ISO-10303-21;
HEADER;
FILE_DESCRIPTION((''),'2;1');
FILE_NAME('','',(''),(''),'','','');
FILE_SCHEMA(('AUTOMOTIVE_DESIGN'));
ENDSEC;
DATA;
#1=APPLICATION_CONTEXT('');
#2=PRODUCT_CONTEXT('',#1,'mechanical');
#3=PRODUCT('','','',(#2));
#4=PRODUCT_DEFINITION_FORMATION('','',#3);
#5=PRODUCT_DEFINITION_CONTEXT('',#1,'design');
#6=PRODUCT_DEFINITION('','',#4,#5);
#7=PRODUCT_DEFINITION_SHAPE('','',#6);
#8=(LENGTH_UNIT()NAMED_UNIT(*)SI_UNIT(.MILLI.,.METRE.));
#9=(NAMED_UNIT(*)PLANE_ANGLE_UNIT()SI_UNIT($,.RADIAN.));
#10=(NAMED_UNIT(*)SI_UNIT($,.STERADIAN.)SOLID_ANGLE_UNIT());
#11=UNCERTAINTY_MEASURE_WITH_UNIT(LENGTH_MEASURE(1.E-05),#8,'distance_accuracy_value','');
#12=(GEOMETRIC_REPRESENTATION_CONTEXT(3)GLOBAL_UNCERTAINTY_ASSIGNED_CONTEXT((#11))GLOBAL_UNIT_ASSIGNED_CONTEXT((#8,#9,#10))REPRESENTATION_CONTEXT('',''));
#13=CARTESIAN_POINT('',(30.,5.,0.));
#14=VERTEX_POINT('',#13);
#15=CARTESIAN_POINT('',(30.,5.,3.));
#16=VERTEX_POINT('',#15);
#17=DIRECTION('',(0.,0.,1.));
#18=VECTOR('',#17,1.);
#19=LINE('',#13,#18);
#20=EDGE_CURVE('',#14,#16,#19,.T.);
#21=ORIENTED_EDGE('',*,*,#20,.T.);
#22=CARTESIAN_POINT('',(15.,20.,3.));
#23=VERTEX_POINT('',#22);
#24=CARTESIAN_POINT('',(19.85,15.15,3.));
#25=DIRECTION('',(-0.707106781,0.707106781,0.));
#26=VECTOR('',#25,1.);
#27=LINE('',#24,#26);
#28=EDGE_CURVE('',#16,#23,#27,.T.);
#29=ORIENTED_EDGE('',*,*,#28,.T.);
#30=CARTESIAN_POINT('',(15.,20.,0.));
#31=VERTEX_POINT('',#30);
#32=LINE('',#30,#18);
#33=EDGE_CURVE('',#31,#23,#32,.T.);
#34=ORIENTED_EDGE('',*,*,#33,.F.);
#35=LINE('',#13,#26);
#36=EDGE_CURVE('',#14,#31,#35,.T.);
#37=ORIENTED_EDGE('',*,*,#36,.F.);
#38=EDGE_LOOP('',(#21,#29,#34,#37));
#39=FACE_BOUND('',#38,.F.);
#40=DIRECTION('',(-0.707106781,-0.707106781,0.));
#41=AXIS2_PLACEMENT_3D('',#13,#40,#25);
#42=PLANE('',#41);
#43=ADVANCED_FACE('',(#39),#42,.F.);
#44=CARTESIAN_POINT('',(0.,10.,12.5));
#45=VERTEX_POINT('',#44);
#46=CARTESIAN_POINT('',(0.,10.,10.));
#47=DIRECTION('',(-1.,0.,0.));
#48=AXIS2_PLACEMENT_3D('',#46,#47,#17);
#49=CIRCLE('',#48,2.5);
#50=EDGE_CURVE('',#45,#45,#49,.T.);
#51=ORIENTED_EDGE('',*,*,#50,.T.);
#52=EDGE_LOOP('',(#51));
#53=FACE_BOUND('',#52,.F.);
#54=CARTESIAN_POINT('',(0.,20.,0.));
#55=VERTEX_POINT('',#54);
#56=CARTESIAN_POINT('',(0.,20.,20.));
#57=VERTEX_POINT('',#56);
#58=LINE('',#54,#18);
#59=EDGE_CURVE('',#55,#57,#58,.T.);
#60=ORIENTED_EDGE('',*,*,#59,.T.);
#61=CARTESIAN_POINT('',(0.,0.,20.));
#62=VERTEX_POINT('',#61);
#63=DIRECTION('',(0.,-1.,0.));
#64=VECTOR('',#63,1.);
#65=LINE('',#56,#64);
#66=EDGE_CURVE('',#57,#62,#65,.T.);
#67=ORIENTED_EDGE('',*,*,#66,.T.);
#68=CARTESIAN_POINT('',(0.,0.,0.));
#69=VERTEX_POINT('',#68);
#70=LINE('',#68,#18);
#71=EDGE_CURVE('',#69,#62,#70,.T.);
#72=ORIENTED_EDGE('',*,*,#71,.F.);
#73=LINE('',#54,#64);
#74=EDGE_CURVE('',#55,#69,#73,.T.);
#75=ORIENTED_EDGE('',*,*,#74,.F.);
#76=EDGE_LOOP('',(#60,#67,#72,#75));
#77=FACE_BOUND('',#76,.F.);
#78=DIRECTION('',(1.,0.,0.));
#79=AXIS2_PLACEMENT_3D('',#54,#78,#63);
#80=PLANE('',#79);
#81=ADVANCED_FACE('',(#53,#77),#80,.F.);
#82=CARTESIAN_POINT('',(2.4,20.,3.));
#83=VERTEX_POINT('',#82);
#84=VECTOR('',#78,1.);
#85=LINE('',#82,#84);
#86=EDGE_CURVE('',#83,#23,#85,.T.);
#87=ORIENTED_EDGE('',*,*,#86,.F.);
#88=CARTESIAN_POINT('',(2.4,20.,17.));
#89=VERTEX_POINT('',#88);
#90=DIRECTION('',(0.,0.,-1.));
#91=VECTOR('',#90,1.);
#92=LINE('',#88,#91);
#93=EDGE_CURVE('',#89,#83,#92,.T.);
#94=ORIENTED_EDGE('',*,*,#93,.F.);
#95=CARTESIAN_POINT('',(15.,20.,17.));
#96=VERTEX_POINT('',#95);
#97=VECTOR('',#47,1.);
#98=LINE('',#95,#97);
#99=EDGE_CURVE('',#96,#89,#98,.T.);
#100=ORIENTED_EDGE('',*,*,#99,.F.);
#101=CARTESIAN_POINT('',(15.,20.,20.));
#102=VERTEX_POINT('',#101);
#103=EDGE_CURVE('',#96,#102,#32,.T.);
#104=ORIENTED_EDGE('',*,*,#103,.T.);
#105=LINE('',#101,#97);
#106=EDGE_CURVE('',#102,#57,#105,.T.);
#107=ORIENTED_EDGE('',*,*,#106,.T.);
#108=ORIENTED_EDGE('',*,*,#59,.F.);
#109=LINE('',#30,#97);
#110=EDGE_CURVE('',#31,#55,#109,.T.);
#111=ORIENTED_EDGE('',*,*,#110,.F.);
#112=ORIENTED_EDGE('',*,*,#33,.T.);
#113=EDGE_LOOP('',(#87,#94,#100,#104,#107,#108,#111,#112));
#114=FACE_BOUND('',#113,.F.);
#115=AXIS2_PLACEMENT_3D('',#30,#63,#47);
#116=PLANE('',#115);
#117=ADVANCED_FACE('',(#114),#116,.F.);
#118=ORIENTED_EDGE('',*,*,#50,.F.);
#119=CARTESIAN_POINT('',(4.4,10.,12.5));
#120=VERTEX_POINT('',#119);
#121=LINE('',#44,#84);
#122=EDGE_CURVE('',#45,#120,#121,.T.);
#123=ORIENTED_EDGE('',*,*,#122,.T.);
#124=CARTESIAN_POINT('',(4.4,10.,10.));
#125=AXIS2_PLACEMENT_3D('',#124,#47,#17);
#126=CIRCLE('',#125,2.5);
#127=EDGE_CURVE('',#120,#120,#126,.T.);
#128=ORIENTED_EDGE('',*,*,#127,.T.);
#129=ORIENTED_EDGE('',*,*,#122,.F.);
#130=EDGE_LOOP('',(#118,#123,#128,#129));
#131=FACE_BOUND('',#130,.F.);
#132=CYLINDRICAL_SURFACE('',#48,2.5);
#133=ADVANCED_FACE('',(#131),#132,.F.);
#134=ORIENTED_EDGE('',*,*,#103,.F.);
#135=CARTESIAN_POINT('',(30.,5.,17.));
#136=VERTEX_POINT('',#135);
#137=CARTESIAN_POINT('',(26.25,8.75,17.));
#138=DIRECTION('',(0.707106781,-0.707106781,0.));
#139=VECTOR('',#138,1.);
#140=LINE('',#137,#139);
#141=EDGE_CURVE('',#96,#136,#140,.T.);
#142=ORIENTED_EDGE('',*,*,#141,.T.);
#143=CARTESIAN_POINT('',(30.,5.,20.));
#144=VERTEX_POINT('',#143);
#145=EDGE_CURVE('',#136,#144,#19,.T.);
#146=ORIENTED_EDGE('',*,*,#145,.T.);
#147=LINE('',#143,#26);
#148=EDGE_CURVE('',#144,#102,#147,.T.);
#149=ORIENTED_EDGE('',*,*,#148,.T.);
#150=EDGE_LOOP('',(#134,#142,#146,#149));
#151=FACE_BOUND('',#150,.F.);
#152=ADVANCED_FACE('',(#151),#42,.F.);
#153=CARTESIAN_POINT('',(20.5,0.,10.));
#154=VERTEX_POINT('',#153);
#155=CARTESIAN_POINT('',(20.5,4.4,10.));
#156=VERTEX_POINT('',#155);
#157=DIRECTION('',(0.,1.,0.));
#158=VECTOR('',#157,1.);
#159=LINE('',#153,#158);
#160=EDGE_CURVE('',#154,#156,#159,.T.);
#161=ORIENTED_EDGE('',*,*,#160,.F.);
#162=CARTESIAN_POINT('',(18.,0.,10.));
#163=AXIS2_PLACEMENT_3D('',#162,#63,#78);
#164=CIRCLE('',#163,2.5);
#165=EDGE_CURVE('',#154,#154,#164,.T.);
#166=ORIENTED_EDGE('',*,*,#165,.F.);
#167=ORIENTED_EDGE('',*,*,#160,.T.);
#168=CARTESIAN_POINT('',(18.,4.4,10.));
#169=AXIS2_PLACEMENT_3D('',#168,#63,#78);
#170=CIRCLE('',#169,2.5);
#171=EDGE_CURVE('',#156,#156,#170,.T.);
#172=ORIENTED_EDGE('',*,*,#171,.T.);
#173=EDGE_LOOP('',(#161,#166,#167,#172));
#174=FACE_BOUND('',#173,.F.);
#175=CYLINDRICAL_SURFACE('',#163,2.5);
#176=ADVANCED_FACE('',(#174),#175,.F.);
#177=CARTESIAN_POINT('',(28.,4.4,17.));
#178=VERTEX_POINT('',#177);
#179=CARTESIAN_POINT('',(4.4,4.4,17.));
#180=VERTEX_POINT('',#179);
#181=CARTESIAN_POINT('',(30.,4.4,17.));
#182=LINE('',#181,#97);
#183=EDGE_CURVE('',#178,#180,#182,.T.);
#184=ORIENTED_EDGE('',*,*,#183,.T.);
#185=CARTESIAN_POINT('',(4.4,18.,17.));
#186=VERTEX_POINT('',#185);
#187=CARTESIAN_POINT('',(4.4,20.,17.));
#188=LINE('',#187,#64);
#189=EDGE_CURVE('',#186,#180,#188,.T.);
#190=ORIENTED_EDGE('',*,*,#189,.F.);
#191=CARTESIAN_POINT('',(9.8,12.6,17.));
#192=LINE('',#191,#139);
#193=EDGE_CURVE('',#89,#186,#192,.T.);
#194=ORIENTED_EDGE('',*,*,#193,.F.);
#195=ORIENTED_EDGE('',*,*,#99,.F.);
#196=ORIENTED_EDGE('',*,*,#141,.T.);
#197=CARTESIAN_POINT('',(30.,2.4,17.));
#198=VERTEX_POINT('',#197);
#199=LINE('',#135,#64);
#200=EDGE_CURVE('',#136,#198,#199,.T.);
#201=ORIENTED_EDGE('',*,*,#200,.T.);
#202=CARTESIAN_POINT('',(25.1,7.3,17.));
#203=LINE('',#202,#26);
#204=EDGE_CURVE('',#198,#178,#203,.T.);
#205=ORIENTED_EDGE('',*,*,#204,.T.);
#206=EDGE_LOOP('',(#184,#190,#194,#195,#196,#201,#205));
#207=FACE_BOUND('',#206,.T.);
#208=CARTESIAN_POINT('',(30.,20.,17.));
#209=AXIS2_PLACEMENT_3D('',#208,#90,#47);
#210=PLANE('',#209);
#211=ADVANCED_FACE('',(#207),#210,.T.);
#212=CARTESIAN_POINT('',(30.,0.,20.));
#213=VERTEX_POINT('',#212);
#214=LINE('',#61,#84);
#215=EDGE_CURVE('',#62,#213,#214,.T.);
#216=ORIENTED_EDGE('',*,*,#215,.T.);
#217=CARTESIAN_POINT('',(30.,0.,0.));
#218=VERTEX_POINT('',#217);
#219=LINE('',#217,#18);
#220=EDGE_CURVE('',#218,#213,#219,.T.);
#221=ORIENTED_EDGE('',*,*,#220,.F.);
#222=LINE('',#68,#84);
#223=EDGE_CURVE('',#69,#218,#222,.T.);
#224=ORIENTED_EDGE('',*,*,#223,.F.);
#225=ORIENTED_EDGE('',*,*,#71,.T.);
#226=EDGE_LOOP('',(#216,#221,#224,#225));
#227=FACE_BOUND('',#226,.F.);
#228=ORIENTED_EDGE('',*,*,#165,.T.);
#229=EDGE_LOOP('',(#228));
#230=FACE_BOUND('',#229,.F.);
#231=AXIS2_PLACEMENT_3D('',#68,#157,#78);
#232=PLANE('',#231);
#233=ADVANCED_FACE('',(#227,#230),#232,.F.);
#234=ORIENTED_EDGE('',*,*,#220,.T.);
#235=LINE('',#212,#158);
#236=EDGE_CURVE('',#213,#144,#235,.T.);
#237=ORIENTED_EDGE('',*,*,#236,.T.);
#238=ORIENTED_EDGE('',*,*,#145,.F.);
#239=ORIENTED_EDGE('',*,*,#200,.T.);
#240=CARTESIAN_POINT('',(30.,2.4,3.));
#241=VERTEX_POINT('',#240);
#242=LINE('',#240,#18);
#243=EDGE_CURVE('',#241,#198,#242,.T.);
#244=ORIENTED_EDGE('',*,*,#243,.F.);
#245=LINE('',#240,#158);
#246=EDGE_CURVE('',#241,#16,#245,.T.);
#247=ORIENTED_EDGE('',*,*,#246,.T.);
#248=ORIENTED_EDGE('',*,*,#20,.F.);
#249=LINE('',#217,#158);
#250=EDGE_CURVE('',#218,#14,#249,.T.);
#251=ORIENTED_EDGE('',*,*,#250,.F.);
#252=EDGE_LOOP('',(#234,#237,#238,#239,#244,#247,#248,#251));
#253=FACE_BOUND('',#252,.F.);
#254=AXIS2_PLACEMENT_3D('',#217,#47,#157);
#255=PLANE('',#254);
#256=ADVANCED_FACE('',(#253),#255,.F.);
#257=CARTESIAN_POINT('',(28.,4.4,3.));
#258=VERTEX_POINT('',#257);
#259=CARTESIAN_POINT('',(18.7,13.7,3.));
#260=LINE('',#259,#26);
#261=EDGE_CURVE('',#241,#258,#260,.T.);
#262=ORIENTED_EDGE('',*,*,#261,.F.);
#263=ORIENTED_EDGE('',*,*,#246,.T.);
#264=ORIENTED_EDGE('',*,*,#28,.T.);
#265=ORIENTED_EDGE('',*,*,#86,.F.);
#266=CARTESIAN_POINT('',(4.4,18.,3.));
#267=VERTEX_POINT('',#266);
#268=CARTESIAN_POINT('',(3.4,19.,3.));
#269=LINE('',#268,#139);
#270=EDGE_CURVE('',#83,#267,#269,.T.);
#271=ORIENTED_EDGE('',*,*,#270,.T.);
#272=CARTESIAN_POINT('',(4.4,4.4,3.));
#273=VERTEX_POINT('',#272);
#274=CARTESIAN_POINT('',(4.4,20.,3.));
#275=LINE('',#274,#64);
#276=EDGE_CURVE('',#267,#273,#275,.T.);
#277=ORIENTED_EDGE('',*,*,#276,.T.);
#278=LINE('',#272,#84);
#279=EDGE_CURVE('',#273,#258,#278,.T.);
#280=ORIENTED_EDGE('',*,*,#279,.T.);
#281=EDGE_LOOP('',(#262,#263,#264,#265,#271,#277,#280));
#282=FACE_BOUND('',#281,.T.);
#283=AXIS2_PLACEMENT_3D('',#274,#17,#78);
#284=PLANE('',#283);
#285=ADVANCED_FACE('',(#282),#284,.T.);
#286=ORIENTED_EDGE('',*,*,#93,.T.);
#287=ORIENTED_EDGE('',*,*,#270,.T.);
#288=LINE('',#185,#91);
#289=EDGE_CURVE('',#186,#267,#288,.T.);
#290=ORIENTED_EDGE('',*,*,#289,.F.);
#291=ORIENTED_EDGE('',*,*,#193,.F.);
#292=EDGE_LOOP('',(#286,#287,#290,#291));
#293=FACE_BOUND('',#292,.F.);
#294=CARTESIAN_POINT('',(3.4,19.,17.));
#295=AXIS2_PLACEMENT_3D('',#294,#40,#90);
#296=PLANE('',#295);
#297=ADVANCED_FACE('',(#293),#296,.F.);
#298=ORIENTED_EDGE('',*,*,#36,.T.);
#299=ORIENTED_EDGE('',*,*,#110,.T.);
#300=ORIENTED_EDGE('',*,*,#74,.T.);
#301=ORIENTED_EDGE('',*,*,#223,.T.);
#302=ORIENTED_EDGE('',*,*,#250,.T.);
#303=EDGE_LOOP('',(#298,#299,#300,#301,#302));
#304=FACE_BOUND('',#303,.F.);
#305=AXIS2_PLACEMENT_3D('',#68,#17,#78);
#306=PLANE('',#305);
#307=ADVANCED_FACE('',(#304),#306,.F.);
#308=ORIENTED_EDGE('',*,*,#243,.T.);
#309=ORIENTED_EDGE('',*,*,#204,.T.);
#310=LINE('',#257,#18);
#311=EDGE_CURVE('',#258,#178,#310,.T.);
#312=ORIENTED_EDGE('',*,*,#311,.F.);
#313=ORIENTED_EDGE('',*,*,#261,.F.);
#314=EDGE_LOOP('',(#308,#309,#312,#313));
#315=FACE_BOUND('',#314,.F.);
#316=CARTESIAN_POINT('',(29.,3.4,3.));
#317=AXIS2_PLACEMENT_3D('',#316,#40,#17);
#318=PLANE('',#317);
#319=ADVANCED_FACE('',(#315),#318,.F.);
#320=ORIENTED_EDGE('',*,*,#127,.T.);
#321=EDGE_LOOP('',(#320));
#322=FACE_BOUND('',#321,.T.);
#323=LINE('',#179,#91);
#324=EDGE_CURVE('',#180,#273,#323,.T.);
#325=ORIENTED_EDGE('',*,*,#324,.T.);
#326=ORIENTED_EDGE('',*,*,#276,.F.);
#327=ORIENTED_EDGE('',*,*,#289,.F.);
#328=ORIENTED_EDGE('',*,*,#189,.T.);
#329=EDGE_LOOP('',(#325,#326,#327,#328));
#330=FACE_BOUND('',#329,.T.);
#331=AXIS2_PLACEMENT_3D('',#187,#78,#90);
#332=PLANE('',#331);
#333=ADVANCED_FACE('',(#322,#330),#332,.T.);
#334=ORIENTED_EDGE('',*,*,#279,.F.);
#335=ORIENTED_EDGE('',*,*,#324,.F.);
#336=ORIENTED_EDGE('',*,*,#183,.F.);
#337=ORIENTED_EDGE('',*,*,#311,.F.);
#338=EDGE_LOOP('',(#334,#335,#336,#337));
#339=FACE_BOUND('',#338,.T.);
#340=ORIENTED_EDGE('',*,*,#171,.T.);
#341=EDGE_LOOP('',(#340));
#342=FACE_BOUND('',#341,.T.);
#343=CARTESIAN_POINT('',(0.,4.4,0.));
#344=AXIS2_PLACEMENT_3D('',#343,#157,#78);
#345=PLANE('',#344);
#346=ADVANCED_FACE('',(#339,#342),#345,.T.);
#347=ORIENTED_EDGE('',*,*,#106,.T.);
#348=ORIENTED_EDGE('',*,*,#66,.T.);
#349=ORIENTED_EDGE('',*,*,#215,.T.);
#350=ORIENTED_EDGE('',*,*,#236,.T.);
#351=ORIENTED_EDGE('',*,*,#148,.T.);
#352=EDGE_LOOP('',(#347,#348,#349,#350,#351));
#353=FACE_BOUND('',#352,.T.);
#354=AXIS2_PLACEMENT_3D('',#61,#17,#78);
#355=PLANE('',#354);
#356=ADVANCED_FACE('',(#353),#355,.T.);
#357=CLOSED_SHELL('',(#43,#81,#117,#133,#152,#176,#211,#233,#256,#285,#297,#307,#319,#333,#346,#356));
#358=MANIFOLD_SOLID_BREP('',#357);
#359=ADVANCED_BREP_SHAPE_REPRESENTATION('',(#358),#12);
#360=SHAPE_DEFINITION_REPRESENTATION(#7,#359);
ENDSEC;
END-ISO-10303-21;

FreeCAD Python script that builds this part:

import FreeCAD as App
import Part
import Sketcher
Q = App.Units.Quantity


def edges_at(feature, points):
    """Names of the edges that pass closest to the given points."""
    edges = feature.Shape.Edges
    near = lambda p: min(range(len(edges)), key=lambda i: edges[i].distToShape(Part.Vertex(*p))[0])
    return sorted({f"Edge{near(p) + 1}" for p in points})

doc = App.newDocument("Part")
body = doc.addObject("PartDesign::Body", "Body")

sketch1 = body.newObject("Sketcher::SketchObject", "Sketch")
sketch1.AttachmentSupport = (doc.getObject("XY_Plane"), [""])
sketch1.MapMode = "FlatFace"
sketch1.addGeometry(Part.LineSegment(App.Vector(0, 20, 0), App.Vector(0, 0, 0)), False)
sketch1.addGeometry(Part.LineSegment(App.Vector(0, 0, 0), App.Vector(30, 0, 0)), False)
sketch1.addGeometry(Part.LineSegment(App.Vector(30, 0, 0), App.Vector(30, 5, 0)), False)
sketch1.addGeometry(Part.LineSegment(App.Vector(30, 5, 0), App.Vector(15, 20, 0)), False)
sketch1.addGeometry(Part.LineSegment(App.Vector(15, 20, 0), App.Vector(0, 20, 0)), False)
sketch1.addConstraint(Sketcher.Constraint("Coincident", 0, 2, 1, 1))
sketch1.addConstraint(Sketcher.Constraint("Coincident", 1, 2, 2, 1))
sketch1.addConstraint(Sketcher.Constraint("Coincident", 2, 2, 3, 1))
sketch1.addConstraint(Sketcher.Constraint("Coincident", 3, 2, 4, 1))
sketch1.addConstraint(Sketcher.Constraint("Coincident", 4, 2, 0, 1))
sketch1.addConstraint(Sketcher.Constraint("Vertical", 0))
sketch1.addConstraint(Sketcher.Constraint("Horizontal", 1))
sketch1.addConstraint(Sketcher.Constraint("Vertical", 2))
sketch1.addConstraint(Sketcher.Constraint("Horizontal", 4))
sketch1.addConstraint(Sketcher.Constraint("Coincident", 0, 2, -1, 1))
sketch1.addConstraint(Sketcher.Constraint("DistanceX", 1, 1, 1, 2, Q("30 mm")))
sketch1.addConstraint(Sketcher.Constraint("DistanceX", 4, 2, 4, 1, Q("15 mm")))
sketch1.addConstraint(Sketcher.Constraint("DistanceY", 0, 2, 0, 1, Q("20 mm")))
sketch1.addConstraint(Sketcher.Constraint("DistanceY", 2, 1, 2, 2, Q("5 mm")))
pad1 = body.newObject("PartDesign::Pad", "Pad")
pad1.Profile = sketch1
pad1.Length = 20

sketch2 = body.newObject("Sketcher::SketchObject", "Sketch001")
sketch2.AttachmentSupport = (doc.getObject("XZ_Plane"), [""])
sketch2.MapMode = "FlatFace"
sketch2.AttachmentOffset = App.Placement(App.Vector(0, 0, -20), App.Rotation())
sketch2.addGeometry(Part.LineSegment(App.Vector(30, 3, 0), App.Vector(4, 3, 0)), False)
sketch2.addGeometry(Part.LineSegment(App.Vector(4, 3, 0), App.Vector(4, 17, 0)), False)
sketch2.addGeometry(Part.LineSegment(App.Vector(4, 17, 0), App.Vector(30, 17, 0)), False)
sketch2.addGeometry(Part.LineSegment(App.Vector(30, 17, 0), App.Vector(30, 3, 0)), False)
sketch2.addConstraint(Sketcher.Constraint("Coincident", 0, 2, 1, 1))
sketch2.addConstraint(Sketcher.Constraint("Coincident", 1, 2, 2, 1))
sketch2.addConstraint(Sketcher.Constraint("Coincident", 2, 2, 3, 1))
sketch2.addConstraint(Sketcher.Constraint("Coincident", 3, 2, 0, 1))
sketch2.addConstraint(Sketcher.Constraint("Horizontal", 0))
sketch2.addConstraint(Sketcher.Constraint("Vertical", 1))
sketch2.addConstraint(Sketcher.Constraint("Horizontal", 2))
sketch2.addConstraint(Sketcher.Constraint("Vertical", 3))
sketch2.addConstraint(Sketcher.Constraint("DistanceY", -1, 1, 0, 2, Q("3 mm")))
sketch2.addConstraint(Sketcher.Constraint("DistanceX", -1, 1, 0, 2, Q("4.4 mm")))
sketch2.addConstraint(Sketcher.Constraint("DistanceY", 1, 1, 1, 2, Q("14 mm")))
sketch2.addConstraint(Sketcher.Constraint("DistanceX", 0, 2, 0, 1, Q("25.6 mm")))
pocket1 = body.newObject("PartDesign::Pocket", "Pocket")
pocket1.Profile = sketch2
pocket1.Length = 15.6
pocket1.Reversed = True
doc.recompute()

chamfer = body.newObject("PartDesign::Chamfer", "Chamfer")
chamfer.Base = (pocket1, edges_at(pocket1, [(4.4, 20, 10), (30, 4.4, 10)]))
chamfer.Size = 2

sketch3 = body.newObject("Sketcher::SketchObject", "Sketch002")
sketch3.AttachmentSupport = (doc.getObject("YZ_Plane"), [""])
sketch3.MapMode = "FlatFace"
sketch3.addGeometry(Part.Circle(App.Vector(10, 10, 0), App.Vector(0, 0, 1), 2.5), False)
sketch3.addConstraint(Sketcher.Constraint("Diameter", 0, Q("5 mm")))
sketch3.addConstraint(Sketcher.Constraint("DistanceX", -1, 1, 0, 3, Q("10 mm")))
sketch3.addConstraint(Sketcher.Constraint("DistanceY", -1, 1, 0, 3, Q("10 mm")))
pocket2 = body.newObject("PartDesign::Pocket", "Pocket001")
pocket2.Profile = sketch3
pocket2.Type = "ThroughAll"
pocket2.Reversed = True

sketch4 = body.newObject("Sketcher::SketchObject", "Sketch003")
sketch4.AttachmentSupport = (doc.getObject("XZ_Plane"), [""])
sketch4.MapMode = "FlatFace"
sketch4.addGeometry(Part.Circle(App.Vector(18, 10, 0), App.Vector(0, 0, 1), 2.5), False)
sketch4.addConstraint(Sketcher.Constraint("Diameter", 0, Q("5 mm")))
sketch4.addConstraint(Sketcher.Constraint("DistanceX", -1, 1, 0, 3, Q("18 mm")))
sketch4.addConstraint(Sketcher.Constraint("DistanceY", -1, 1, 0, 3, Q("10 mm")))
pocket3 = body.newObject("PartDesign::Pocket", "Pocket002")
pocket3.Profile = sketch4
pocket3.Type = "UpToFirst"

doc.recompute()
